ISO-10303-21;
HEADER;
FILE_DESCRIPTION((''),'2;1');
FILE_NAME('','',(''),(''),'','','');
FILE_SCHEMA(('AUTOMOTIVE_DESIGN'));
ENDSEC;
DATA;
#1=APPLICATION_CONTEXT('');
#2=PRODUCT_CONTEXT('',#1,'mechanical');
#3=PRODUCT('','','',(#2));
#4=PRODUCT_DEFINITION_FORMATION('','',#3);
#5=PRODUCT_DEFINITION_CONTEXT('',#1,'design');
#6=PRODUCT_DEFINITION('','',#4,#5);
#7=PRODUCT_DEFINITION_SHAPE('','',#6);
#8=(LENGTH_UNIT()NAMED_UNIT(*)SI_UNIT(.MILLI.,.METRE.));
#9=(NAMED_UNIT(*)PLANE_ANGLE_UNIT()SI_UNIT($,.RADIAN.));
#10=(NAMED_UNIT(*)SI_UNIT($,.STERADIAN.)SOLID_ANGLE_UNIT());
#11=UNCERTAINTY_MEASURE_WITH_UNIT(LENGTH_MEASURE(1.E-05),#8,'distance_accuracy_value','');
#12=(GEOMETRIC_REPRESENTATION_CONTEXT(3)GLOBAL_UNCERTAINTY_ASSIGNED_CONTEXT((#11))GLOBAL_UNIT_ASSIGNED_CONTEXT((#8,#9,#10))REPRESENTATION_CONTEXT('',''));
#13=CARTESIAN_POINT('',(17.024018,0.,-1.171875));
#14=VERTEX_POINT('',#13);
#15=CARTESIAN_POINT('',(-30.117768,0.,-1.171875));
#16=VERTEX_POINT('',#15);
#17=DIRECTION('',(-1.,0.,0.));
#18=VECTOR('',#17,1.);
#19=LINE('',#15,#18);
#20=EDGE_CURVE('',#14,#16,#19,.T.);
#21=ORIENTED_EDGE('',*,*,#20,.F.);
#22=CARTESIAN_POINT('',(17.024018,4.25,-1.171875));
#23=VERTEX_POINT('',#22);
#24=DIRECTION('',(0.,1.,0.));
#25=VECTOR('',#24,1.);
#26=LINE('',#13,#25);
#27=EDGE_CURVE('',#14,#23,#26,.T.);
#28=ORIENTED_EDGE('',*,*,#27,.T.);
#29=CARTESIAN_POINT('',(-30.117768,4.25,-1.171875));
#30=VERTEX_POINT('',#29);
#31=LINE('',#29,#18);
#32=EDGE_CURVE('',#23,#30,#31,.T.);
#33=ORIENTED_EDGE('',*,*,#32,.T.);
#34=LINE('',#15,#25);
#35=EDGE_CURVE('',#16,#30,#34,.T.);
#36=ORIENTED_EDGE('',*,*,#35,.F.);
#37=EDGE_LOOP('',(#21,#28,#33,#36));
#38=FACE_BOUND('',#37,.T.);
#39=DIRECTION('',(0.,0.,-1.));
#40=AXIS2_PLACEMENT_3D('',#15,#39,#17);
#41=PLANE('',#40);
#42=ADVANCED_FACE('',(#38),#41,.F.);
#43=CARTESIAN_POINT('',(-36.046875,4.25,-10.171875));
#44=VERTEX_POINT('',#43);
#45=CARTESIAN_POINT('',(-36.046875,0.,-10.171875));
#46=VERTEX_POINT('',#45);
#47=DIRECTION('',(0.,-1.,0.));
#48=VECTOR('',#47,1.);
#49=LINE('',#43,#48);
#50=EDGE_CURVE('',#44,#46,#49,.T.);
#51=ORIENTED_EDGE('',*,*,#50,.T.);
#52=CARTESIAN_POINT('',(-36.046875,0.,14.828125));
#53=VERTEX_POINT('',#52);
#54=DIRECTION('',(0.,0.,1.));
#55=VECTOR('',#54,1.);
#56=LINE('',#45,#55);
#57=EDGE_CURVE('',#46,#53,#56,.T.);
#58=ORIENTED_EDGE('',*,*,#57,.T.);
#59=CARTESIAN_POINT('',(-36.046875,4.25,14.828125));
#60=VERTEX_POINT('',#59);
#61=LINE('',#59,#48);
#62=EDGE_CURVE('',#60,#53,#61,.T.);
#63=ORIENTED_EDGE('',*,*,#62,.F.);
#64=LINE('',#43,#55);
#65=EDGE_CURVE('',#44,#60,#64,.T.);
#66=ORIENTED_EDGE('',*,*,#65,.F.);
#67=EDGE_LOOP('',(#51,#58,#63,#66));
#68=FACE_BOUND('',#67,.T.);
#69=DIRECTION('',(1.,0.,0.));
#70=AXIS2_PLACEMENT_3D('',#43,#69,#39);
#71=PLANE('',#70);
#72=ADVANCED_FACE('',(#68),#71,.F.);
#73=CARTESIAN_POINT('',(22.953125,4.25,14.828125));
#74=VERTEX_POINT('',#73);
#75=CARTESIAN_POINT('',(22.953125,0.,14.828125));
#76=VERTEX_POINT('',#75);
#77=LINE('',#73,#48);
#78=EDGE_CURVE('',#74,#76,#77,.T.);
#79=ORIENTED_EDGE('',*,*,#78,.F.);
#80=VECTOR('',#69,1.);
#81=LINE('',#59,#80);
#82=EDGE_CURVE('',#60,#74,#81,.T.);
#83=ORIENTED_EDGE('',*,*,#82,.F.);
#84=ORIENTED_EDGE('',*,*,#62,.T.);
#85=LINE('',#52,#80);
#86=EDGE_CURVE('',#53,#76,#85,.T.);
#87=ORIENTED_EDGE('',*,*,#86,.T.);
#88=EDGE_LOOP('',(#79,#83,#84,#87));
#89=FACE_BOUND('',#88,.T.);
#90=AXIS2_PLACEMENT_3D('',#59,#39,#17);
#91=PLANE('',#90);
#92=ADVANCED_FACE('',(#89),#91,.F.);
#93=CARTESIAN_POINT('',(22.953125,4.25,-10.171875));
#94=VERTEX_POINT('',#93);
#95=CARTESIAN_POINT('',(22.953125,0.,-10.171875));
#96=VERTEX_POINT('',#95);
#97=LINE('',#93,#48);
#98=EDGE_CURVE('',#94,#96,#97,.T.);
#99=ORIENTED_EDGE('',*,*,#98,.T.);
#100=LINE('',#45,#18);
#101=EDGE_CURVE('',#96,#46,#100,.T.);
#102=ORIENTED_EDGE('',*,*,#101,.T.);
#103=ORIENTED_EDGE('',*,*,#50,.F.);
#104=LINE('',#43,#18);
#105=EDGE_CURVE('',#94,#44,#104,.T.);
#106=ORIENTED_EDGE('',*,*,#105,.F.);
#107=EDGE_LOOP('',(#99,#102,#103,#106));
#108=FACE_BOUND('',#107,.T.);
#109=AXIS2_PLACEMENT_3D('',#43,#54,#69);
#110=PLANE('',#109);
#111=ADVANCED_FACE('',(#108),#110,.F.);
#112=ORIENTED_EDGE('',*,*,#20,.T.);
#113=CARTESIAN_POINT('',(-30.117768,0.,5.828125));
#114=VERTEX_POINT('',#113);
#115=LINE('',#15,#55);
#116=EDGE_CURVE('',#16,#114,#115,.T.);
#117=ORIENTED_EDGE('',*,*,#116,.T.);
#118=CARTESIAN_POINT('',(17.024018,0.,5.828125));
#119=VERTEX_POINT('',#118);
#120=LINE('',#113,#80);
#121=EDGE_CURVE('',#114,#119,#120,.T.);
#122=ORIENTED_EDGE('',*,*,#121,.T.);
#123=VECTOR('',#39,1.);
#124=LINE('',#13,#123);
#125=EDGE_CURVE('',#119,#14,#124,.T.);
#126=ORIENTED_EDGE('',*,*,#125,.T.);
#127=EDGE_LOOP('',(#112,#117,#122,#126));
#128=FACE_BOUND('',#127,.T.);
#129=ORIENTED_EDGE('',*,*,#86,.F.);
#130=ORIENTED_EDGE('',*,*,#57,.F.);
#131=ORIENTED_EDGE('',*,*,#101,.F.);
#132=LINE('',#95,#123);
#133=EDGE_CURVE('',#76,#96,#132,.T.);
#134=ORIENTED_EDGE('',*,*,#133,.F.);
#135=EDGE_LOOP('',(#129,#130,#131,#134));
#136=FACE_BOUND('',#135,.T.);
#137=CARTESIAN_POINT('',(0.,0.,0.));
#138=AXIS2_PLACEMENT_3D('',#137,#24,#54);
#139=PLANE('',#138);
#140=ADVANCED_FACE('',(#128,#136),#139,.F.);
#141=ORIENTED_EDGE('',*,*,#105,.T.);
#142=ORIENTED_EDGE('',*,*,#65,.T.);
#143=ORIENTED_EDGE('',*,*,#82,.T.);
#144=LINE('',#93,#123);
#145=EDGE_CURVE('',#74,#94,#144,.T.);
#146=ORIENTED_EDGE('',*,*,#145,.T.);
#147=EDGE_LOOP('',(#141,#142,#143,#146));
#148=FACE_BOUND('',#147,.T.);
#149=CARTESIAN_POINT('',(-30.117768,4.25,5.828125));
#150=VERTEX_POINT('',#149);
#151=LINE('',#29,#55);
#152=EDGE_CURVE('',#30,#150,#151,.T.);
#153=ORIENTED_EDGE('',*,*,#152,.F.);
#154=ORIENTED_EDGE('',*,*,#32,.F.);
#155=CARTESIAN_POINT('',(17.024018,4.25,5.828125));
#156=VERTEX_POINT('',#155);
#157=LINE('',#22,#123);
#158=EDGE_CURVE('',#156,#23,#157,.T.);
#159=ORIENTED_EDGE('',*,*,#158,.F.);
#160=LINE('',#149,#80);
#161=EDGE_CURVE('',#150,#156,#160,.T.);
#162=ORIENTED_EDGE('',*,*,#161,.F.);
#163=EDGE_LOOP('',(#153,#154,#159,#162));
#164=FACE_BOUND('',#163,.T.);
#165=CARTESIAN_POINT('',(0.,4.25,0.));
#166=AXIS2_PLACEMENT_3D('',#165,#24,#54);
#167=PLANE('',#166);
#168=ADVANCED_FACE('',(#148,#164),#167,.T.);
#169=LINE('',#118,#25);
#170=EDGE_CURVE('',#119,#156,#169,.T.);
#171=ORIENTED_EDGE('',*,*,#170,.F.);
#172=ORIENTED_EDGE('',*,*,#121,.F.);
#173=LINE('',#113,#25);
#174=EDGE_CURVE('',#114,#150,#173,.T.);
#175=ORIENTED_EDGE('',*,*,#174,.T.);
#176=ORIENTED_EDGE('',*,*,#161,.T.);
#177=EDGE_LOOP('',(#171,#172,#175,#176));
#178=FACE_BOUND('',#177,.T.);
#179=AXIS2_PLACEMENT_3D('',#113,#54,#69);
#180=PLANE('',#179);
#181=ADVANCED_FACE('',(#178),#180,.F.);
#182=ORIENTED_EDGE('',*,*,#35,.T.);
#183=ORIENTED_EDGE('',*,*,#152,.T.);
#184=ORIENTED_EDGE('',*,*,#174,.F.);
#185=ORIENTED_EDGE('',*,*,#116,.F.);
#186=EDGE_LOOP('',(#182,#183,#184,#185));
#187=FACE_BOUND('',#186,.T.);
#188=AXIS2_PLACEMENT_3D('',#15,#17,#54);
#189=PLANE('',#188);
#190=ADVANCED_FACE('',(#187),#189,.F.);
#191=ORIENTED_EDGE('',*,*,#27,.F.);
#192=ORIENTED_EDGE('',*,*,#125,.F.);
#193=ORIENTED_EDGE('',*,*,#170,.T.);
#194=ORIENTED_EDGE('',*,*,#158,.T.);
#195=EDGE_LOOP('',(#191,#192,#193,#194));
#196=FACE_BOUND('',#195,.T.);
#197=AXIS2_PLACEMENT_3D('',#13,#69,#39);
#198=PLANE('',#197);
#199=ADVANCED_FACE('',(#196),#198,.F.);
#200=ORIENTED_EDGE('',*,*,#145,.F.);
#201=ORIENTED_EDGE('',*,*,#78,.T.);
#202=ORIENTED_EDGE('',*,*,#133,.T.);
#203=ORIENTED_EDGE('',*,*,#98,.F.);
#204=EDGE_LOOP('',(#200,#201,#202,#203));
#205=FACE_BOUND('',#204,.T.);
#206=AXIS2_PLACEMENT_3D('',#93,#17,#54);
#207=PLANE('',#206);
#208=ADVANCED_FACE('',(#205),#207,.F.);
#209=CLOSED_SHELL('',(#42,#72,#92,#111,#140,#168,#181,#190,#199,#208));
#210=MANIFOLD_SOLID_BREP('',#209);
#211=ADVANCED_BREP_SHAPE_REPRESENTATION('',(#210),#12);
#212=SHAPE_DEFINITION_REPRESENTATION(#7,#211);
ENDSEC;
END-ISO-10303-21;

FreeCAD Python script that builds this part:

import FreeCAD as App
import Part
import Sketcher


def add_polygon(sketch, points):
    """Adds a closed chain of lines whose ends are joined by coincident constraints."""
    first, n = sketch.GeometryCount, len(points)
    for a, b in zip(points, points[1:] + points[:1]):
        sketch.addGeometry(Part.LineSegment(App.Vector(*a, 0), App.Vector(*b, 0)), False)
    for i in range(n):
        sketch.addConstraint(Sketcher.Constraint("Coincident", first + i, 2, first + (i + 1) % n, 1))

doc = App.newDocument("Part")
body = doc.addObject("PartDesign::Body", "Body")

# Sketch on XZ plane
sketch1 = body.newObject("Sketcher::SketchObject", "Sketch")
sketch1.AttachmentSupport = (doc.getObject("XZ_Plane"), [""])
sketch1.MapMode = "FlatFace"
add_polygon(sketch1, [(-36, -10), (-36, 15), (23, 15), (23, -10)])  # lines 0-3
sketch1.addConstraint(Sketcher.Constraint("Vertical", 0))
sketch1.addConstraint(Sketcher.Constraint("Horizontal", 1))
sketch1.addConstraint(Sketcher.Constraint("Vertical", 2))
sketch1.addConstraint(Sketcher.Constraint("Horizontal", 3))
sketch1.addConstraint(Sketcher.Constraint("DistanceX", 1, 1, 1, 2, 59.0))
sketch1.addConstraint(Sketcher.Constraint("DistanceY", 0, 1, 0, 2, 25.0))
sketch1.addConstraint(Sketcher.Constraint("DistanceX", 0, 2, -1, 1, 36.046875))
sketch1.addConstraint(Sketcher.Constraint("DistanceY", -1, 1, 0, 2, 14.828125))
pad1 = body.newObject("PartDesign::Pad", "Pad")
pad1.Profile = sketch1
pad1.Length = 4.25
pad1.Reversed = True

# Sketch on XZ plane
sketch2 = body.newObject("Sketcher::SketchObject", "Sketch001")
sketch2.AttachmentSupport = (doc.getObject("XZ_Plane"), [""])
sketch2.MapMode = "FlatFace"
sketch2.AttachmentOffset = App.Placement(App.Vector(0, 0, -4.25), App.Rotation())
add_polygon(sketch2, [(-30, -1), (-30, 6), (17, 6), (17, -1)])  # lines 0-3
sketch2.addConstraint(Sketcher.Constraint("Vertical", 0))
sketch2.addConstraint(Sketcher.Constraint("Horizontal", 1))
sketch2.addConstraint(Sketcher.Constraint("Vertical", 2))
sketch2.addConstraint(Sketcher.Constraint("Horizontal", 3))
sketch2.addConstraint(Sketcher.Constraint("DistanceY", 0, 1, 0, 2, 7.0))
sketch2.addConstraint(Sketcher.Constraint("DistanceX", 1, 1, 1, 2, 47.141786))
sketch2.addConstraint(Sketcher.Constraint("DistanceX", 0, 2, -1, 1, 30.117768))
sketch2.addConstraint(Sketcher.Constraint("DistanceY", -1, 1, 0, 2, 5.828125))
pocket1 = body.newObject("PartDesign::Pocket", "Pocket")
pocket1.Profile = sketch2
pocket1.Type = "ThroughAll"
pocket1.Reversed = True

doc.recompute()
